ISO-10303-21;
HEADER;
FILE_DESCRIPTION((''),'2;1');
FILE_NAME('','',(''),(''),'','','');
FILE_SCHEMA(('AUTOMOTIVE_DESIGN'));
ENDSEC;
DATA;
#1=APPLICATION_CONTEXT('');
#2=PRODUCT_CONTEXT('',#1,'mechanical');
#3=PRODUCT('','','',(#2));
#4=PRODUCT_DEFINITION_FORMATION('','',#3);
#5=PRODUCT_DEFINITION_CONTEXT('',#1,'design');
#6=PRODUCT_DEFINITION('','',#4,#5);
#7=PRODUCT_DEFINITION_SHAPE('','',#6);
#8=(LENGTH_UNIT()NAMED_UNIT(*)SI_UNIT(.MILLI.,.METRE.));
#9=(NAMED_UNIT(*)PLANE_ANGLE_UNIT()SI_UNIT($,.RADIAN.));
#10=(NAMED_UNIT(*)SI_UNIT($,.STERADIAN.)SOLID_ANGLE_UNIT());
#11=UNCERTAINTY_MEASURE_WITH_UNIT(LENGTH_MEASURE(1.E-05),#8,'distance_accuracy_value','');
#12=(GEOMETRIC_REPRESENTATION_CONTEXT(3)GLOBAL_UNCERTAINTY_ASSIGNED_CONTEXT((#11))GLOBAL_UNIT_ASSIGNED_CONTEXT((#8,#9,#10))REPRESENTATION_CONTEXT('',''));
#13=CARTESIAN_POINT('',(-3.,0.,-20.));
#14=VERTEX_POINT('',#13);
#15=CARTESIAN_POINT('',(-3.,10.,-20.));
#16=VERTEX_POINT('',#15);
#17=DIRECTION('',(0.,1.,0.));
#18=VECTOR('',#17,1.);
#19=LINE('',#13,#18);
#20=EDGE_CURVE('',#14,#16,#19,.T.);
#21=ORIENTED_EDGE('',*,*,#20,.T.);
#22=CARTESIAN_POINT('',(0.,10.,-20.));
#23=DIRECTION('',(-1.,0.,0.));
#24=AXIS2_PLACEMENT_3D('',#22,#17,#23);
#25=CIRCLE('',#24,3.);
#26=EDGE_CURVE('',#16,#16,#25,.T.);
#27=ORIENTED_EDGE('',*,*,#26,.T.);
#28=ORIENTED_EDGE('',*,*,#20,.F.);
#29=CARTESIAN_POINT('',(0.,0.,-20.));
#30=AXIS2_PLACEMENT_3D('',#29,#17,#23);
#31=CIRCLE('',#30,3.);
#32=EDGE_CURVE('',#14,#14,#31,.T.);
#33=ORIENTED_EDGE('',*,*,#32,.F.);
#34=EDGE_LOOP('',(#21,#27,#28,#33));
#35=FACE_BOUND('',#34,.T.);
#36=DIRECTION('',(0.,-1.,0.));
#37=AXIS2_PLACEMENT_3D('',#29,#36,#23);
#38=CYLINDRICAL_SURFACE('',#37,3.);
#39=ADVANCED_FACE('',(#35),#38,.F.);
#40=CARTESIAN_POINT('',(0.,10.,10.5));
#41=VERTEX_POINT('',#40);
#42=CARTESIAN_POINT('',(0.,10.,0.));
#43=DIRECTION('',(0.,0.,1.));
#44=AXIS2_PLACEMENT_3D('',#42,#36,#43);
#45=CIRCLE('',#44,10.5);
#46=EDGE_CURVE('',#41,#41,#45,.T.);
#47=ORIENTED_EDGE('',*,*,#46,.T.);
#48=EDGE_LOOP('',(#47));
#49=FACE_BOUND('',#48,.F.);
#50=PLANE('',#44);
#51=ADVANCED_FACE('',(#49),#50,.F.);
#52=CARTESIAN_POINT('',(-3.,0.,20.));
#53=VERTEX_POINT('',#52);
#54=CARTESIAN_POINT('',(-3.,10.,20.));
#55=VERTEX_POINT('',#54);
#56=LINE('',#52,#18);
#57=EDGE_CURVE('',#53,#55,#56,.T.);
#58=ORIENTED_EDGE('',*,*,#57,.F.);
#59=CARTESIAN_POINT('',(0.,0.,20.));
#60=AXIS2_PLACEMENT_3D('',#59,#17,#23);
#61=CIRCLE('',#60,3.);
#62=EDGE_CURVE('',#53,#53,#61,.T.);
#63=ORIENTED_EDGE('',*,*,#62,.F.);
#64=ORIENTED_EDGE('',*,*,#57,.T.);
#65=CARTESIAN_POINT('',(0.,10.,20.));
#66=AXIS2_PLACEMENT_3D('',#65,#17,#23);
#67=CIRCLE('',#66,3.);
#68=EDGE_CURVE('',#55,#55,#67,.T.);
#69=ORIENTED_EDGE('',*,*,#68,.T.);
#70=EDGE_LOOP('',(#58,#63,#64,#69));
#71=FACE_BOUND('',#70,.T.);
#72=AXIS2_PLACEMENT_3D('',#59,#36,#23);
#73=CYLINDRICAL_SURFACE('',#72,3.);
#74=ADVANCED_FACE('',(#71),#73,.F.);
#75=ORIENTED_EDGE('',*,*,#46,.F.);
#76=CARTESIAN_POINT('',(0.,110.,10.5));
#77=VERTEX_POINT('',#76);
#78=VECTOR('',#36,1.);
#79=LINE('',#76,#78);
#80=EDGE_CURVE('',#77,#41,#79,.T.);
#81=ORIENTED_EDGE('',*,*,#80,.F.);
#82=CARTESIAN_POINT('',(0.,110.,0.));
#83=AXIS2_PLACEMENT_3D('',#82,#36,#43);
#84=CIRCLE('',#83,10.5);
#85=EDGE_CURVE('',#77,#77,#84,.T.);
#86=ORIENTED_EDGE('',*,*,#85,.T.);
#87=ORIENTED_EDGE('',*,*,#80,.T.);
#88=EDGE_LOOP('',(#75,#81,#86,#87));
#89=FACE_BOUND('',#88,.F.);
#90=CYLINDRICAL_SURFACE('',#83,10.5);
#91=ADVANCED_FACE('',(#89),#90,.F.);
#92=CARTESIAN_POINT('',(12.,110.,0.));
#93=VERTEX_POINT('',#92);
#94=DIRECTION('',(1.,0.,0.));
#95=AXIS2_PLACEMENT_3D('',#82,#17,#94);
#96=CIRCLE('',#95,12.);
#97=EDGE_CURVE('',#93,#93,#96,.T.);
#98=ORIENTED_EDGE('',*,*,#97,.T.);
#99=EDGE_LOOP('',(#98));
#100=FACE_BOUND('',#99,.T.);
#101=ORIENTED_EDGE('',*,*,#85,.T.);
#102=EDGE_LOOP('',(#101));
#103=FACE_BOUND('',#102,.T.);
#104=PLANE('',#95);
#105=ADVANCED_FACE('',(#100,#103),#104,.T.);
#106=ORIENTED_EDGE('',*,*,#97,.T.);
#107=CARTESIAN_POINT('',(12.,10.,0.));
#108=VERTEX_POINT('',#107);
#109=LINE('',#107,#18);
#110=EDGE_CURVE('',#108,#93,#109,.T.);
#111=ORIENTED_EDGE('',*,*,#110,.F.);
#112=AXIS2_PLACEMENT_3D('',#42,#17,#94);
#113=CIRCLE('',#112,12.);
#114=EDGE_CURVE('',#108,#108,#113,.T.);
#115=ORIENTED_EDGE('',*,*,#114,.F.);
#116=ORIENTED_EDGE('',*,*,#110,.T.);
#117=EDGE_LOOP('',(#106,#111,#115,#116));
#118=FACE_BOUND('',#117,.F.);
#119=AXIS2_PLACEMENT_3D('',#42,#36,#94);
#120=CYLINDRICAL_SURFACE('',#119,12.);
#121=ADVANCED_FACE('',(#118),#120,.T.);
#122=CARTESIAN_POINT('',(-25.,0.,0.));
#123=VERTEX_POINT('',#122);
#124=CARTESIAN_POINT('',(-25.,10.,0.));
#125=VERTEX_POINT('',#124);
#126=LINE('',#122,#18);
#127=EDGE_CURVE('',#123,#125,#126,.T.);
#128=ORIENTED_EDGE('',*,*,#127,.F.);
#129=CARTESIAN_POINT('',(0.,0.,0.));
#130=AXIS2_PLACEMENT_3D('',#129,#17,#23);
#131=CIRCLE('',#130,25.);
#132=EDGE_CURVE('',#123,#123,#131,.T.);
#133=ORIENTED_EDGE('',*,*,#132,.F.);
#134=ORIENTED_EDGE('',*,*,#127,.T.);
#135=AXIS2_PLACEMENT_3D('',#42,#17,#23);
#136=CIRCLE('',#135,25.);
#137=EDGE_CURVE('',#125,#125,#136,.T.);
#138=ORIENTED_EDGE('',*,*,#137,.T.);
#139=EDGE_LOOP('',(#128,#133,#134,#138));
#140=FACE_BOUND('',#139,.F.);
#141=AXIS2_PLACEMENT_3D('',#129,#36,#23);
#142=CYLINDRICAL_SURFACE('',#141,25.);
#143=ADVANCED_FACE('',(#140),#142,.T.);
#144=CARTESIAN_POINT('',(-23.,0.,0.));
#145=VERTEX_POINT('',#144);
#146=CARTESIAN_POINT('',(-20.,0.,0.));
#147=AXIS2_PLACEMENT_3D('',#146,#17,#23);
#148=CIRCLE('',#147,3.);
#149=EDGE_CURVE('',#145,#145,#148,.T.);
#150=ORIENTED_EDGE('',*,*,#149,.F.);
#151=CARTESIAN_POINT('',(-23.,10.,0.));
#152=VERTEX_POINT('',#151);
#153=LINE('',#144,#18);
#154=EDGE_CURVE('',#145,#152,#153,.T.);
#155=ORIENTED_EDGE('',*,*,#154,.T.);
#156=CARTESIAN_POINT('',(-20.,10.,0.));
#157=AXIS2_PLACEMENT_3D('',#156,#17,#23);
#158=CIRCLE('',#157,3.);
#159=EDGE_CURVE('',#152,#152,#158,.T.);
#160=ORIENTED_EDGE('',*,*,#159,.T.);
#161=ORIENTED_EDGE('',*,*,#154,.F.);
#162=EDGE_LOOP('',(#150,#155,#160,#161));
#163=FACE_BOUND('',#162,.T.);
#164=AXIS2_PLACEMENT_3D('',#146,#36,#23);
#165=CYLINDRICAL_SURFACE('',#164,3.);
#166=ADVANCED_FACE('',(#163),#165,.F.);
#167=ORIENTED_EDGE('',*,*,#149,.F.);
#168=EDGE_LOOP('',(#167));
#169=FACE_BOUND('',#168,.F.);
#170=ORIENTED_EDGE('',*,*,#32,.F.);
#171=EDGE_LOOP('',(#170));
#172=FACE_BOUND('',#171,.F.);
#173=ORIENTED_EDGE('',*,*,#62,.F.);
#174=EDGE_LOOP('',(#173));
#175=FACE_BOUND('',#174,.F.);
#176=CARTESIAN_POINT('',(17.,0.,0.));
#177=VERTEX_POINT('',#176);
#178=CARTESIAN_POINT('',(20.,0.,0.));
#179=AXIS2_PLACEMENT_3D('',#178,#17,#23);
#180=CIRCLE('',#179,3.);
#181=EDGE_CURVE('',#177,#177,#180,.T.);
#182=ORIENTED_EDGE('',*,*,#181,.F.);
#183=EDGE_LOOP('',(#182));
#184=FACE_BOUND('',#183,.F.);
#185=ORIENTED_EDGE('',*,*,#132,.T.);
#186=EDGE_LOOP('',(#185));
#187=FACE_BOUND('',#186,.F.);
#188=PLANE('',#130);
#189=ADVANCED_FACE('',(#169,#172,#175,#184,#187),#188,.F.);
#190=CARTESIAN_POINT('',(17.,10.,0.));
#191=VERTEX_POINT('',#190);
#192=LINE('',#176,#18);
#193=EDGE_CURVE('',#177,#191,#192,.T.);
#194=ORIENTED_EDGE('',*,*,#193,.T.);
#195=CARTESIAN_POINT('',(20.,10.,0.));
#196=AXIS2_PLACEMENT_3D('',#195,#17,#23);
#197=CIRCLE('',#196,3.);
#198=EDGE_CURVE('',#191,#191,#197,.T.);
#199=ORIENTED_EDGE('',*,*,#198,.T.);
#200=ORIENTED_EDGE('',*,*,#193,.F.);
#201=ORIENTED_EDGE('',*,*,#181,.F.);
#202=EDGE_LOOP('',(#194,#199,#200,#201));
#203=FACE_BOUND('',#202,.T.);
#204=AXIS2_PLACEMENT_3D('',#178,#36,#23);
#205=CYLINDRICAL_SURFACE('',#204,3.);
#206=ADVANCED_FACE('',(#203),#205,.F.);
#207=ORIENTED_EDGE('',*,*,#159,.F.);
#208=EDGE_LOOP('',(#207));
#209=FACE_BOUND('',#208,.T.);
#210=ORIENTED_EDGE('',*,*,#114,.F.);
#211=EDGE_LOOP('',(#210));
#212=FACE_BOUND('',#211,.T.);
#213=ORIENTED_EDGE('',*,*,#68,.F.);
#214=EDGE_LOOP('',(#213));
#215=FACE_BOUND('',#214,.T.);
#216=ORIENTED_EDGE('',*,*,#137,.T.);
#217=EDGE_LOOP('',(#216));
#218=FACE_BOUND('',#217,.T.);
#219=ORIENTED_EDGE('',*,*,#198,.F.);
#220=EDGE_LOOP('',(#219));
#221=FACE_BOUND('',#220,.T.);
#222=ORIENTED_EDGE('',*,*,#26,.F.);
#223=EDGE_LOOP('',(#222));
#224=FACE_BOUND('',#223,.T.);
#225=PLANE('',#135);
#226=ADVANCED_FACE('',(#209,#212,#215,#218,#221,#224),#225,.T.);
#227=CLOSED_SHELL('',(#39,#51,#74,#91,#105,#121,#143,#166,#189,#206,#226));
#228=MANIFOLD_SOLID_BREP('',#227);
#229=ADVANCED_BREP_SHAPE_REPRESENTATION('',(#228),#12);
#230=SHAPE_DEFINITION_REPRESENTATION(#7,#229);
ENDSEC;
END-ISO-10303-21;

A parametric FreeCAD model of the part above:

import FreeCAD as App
import Part
import Sketcher

V = App.Vector

doc = App.newDocument("Part")
body = doc.addObject("PartDesign::Body", "Body")

# Sketch on XZ plane
sketch1 = body.newObject("Sketcher::SketchObject", "Sketch")
sketch1.AttachmentSupport = (doc.getObject("XZ_Plane"), [""])
sketch1.MapMode = "FlatFace"
sketch1.addGeometry([
    Part.Circle(V(0, 0, 0), V(0, 0, 1), 25),  # 0
    Part.Circle(V(0, -20, 0), V(0, 0, 1), 3),  # 1
    Part.Circle(V(20, 0, 0), V(0, 0, 1), 3),  # 2
    Part.Circle(V(-20, 0, 0), V(0, 0, 1), 3),  # 3
    Part.Circle(V(0, 20, 0), V(0, 0, 1), 3),  # 4
], False)
sketch1.addConstraint([
    Sketcher.Constraint("Coincident", 0, 3, -1, 1),
    Sketcher.Constraint("Equal", 1, 2),
    Sketcher.Constraint("Equal", 2, 3),
    Sketcher.Constraint("Equal", 3, 4),
    Sketcher.Constraint("Symmetric", 2, 3, 3, 3, -1, 1),
    Sketcher.Constraint("Symmetric", 1, 3, 4, 3, -1, 1),
    Sketcher.Constraint("PointOnObject", 1, 3, -2),
    Sketcher.Constraint("PointOnObject", 2, 3, -1),
    Sketcher.Constraint("Diameter", 0, 50.0),
    Sketcher.Constraint("Diameter", 1, 6.0),
    Sketcher.Constraint("DistanceY", 1, 3, -1, 1, 20.0),
    Sketcher.Constraint("DistanceX", -1, 1, 2, 3, 20.0),
])
pad1 = body.newObject("PartDesign::Pad", "Pad")
pad1.Profile = sketch1
pad1.Length = 10
pad1.Reversed = True

# Sketch on XZ plane
sketch2 = body.newObject("Sketcher::SketchObject", "Sketch001")
sketch2.AttachmentSupport = (doc.getObject("XZ_Plane"), [""])
sketch2.MapMode = "FlatFace"
sketch2.AttachmentOffset = App.Placement(V(0, 0, -10), App.Rotation())
sketch2.addGeometry(Part.Circle(V(0, 0, 0), V(0, 0, 1), 12), False)
sketch2.addConstraint([
    Sketcher.Constraint("Coincident", 0, 3, -1, 1),
    Sketcher.Constraint("Diameter", 0, 24.0),
])
pad2 = body.newObject("PartDesign::Pad", "Pad001")
pad2.Profile = sketch2
pad2.Length = 100
pad2.Reversed = True

# Sketch on XZ plane
sketch3 = body.newObject("Sketcher::SketchObject", "Sketch002")
sketch3.AttachmentSupport = (doc.getObject("XZ_Plane"), [""])
sketch3.MapMode = "FlatFace"
sketch3.AttachmentOffset = App.Placement(V(0, 0, -110), App.Rotation())
sketch3.addGeometry(Part.Circle(V(0, 0, 0), V(0, 0, 1), 10.5), False)
sketch3.addConstraint([
    Sketcher.Constraint("Coincident", 0, 3, -1, 1),
    Sketcher.Constraint("Diameter", 0, 21.0),
])
doc.recompute()
hole = body.newObject("PartDesign::Hole", "Hole")
hole.Profile = sketch3
hole.ThreadType = "None"
hole.Diameter = 21
hole.DepthType = "Dimension"
hole.Depth = 100
hole.DrillPoint = "Flat"
hole.Reversed = True

doc.recompute()
